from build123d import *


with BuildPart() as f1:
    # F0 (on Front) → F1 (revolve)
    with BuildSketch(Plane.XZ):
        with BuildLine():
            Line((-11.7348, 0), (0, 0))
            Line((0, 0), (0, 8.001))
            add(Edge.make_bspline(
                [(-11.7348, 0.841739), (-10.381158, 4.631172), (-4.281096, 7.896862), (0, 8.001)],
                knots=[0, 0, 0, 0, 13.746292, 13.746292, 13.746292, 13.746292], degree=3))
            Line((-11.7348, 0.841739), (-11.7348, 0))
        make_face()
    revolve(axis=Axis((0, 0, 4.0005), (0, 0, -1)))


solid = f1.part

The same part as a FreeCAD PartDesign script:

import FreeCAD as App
import Part
import Sketcher
from FreeCAD import Vector

doc = App.newDocument("Part")
body = doc.addObject("PartDesign::Body", "Body")

sketch1 = doc.addObject("Sketcher::SketchObject", "Sketch")
body.addObject(sketch1)
sketch1.AttachmentSupport = (doc.XZ_Plane, [""])
sketch1.MapMode = "FlatFace"
sketch1.addGeometry([
    Part.LineSegment(Vector(-11.7348, 0, 0), Vector(0, 0, 0)),
    Part.LineSegment(Vector(0, 0, 0), Vector(0, 8.001, 0)),
    Part.BSplineCurve([Vector(-11.7348, 0.841739, 0), Vector(-10.381158, 4.631172, 0), Vector(-4.281096, 7.896862, 0), Vector(0, 8.001, 0)], [4, 4], [0, 13.746292], False, 3, [1, 1, 1, 1], False),
    Part.LineSegment(Vector(-11.7348, 0.841739, 0), Vector(-11.7348, 0, 0)),
], False)
sketch1.addConstraint([
    Sketcher.Constraint("Block", 2),
    Sketcher.Constraint("Coincident", 0, 2, 1, 1),
    Sketcher.Constraint("Coincident", 1, 2, 2, 2),
    Sketcher.Constraint("Coincident", 2, 1, 3, 1),
    Sketcher.Constraint("Coincident", 3, 2, 0, 1),
    Sketcher.Constraint("Horizontal", 0),
    Sketcher.Constraint("Vertical", 1),
    Sketcher.Constraint("Vertical", 3),
    Sketcher.Constraint("PointOnObject", 3, 2, -1),
])
revolution = doc.addObject("PartDesign::Revolution", "Revolution")
body.addObject(revolution)
revolution.Profile = sketch1
revolution.ReferenceAxis = (sketch1, ["V_Axis"])
revolution.Angle = 360

doc.recompute()
